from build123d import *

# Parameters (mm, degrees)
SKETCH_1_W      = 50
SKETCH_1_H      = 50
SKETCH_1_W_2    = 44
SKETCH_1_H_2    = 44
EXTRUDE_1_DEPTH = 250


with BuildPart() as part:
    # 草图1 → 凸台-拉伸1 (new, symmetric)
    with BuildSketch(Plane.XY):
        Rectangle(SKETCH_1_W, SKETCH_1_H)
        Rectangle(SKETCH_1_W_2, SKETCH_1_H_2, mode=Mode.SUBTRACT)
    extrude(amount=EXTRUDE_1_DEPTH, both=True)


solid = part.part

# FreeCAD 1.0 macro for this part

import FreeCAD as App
import Part
import Sketcher

V = App.Vector
Q = App.Units.Quantity

doc = App.newDocument("Part")
body = doc.addObject("PartDesign::Body", "Body")

sketch1 = body.newObject("Sketcher::SketchObject", "Sketch")
sketch1.AttachmentSupport = (doc.getObject("XY_Plane"), [""])
sketch1.MapMode = "FlatFace"
sketch1.addGeometry([
    Part.LineSegment(V(-25, 25, 0), V(-25, -25, 0)),
    Part.LineSegment(V(-25, -25, 0), V(25, -25, 0)),
    Part.LineSegment(V(25, -25, 0), V(25, 25, 0)),
    Part.LineSegment(V(25, 25, 0), V(-25, 25, 0)),
    Part.LineSegment(V(22, -22, 0), V(-22, -22, 0)),
    Part.LineSegment(V(-22, -22, 0), V(-22, 22, 0)),
    Part.LineSegment(V(-22, 22, 0), V(22, 22, 0)),
    Part.LineSegment(V(22, 22, 0), V(22, -22, 0)),
], False)
sketch1.addConstraint([
    Sketcher.Constraint("Coincident", 0, 2, 1, 1),
    Sketcher.Constraint("Coincident", 1, 2, 2, 1),
    Sketcher.Constraint("Coincident", 2, 2, 3, 1),
    Sketcher.Constraint("Coincident", 3, 2, 0, 1),
    Sketcher.Constraint("Coincident", 4, 2, 5, 1),
    Sketcher.Constraint("Coincident", 5, 2, 6, 1),
    Sketcher.Constraint("Coincident", 6, 2, 7, 1),
    Sketcher.Constraint("Coincident", 7, 2, 4, 1),
    Sketcher.Constraint("Vertical", 0),
    Sketcher.Constraint("Horizontal", 1),
    Sketcher.Constraint("Vertical", 2),
    Sketcher.Constraint("Horizontal", 3),
    Sketcher.Constraint("Horizontal", 4),
    Sketcher.Constraint("Vertical", 5),
    Sketcher.Constraint("Horizontal", 6),
    Sketcher.Constraint("Vertical", 7),
    Sketcher.Constraint("Symmetric", 0, 2, 2, 2, -1, 1),
    Sketcher.Constraint("Symmetric", 4, 2, 6, 2, -1, 1),
    Sketcher.Constraint("Equal", 3, 0),
    Sketcher.Constraint("Equal", 6, 5),
    Sketcher.Constraint("DistanceX", 1, 1, 1, 2, Q("50 mm")),
    Sketcher.Constraint("DistanceX", 4, 2, 4, 1, Q("44 mm")),
])
pad1 = body.newObject("PartDesign::Pad", "Pad")
pad1.Profile = sketch1
pad1.Length = 500
pad1.Midplane = True

doc.recompute()
